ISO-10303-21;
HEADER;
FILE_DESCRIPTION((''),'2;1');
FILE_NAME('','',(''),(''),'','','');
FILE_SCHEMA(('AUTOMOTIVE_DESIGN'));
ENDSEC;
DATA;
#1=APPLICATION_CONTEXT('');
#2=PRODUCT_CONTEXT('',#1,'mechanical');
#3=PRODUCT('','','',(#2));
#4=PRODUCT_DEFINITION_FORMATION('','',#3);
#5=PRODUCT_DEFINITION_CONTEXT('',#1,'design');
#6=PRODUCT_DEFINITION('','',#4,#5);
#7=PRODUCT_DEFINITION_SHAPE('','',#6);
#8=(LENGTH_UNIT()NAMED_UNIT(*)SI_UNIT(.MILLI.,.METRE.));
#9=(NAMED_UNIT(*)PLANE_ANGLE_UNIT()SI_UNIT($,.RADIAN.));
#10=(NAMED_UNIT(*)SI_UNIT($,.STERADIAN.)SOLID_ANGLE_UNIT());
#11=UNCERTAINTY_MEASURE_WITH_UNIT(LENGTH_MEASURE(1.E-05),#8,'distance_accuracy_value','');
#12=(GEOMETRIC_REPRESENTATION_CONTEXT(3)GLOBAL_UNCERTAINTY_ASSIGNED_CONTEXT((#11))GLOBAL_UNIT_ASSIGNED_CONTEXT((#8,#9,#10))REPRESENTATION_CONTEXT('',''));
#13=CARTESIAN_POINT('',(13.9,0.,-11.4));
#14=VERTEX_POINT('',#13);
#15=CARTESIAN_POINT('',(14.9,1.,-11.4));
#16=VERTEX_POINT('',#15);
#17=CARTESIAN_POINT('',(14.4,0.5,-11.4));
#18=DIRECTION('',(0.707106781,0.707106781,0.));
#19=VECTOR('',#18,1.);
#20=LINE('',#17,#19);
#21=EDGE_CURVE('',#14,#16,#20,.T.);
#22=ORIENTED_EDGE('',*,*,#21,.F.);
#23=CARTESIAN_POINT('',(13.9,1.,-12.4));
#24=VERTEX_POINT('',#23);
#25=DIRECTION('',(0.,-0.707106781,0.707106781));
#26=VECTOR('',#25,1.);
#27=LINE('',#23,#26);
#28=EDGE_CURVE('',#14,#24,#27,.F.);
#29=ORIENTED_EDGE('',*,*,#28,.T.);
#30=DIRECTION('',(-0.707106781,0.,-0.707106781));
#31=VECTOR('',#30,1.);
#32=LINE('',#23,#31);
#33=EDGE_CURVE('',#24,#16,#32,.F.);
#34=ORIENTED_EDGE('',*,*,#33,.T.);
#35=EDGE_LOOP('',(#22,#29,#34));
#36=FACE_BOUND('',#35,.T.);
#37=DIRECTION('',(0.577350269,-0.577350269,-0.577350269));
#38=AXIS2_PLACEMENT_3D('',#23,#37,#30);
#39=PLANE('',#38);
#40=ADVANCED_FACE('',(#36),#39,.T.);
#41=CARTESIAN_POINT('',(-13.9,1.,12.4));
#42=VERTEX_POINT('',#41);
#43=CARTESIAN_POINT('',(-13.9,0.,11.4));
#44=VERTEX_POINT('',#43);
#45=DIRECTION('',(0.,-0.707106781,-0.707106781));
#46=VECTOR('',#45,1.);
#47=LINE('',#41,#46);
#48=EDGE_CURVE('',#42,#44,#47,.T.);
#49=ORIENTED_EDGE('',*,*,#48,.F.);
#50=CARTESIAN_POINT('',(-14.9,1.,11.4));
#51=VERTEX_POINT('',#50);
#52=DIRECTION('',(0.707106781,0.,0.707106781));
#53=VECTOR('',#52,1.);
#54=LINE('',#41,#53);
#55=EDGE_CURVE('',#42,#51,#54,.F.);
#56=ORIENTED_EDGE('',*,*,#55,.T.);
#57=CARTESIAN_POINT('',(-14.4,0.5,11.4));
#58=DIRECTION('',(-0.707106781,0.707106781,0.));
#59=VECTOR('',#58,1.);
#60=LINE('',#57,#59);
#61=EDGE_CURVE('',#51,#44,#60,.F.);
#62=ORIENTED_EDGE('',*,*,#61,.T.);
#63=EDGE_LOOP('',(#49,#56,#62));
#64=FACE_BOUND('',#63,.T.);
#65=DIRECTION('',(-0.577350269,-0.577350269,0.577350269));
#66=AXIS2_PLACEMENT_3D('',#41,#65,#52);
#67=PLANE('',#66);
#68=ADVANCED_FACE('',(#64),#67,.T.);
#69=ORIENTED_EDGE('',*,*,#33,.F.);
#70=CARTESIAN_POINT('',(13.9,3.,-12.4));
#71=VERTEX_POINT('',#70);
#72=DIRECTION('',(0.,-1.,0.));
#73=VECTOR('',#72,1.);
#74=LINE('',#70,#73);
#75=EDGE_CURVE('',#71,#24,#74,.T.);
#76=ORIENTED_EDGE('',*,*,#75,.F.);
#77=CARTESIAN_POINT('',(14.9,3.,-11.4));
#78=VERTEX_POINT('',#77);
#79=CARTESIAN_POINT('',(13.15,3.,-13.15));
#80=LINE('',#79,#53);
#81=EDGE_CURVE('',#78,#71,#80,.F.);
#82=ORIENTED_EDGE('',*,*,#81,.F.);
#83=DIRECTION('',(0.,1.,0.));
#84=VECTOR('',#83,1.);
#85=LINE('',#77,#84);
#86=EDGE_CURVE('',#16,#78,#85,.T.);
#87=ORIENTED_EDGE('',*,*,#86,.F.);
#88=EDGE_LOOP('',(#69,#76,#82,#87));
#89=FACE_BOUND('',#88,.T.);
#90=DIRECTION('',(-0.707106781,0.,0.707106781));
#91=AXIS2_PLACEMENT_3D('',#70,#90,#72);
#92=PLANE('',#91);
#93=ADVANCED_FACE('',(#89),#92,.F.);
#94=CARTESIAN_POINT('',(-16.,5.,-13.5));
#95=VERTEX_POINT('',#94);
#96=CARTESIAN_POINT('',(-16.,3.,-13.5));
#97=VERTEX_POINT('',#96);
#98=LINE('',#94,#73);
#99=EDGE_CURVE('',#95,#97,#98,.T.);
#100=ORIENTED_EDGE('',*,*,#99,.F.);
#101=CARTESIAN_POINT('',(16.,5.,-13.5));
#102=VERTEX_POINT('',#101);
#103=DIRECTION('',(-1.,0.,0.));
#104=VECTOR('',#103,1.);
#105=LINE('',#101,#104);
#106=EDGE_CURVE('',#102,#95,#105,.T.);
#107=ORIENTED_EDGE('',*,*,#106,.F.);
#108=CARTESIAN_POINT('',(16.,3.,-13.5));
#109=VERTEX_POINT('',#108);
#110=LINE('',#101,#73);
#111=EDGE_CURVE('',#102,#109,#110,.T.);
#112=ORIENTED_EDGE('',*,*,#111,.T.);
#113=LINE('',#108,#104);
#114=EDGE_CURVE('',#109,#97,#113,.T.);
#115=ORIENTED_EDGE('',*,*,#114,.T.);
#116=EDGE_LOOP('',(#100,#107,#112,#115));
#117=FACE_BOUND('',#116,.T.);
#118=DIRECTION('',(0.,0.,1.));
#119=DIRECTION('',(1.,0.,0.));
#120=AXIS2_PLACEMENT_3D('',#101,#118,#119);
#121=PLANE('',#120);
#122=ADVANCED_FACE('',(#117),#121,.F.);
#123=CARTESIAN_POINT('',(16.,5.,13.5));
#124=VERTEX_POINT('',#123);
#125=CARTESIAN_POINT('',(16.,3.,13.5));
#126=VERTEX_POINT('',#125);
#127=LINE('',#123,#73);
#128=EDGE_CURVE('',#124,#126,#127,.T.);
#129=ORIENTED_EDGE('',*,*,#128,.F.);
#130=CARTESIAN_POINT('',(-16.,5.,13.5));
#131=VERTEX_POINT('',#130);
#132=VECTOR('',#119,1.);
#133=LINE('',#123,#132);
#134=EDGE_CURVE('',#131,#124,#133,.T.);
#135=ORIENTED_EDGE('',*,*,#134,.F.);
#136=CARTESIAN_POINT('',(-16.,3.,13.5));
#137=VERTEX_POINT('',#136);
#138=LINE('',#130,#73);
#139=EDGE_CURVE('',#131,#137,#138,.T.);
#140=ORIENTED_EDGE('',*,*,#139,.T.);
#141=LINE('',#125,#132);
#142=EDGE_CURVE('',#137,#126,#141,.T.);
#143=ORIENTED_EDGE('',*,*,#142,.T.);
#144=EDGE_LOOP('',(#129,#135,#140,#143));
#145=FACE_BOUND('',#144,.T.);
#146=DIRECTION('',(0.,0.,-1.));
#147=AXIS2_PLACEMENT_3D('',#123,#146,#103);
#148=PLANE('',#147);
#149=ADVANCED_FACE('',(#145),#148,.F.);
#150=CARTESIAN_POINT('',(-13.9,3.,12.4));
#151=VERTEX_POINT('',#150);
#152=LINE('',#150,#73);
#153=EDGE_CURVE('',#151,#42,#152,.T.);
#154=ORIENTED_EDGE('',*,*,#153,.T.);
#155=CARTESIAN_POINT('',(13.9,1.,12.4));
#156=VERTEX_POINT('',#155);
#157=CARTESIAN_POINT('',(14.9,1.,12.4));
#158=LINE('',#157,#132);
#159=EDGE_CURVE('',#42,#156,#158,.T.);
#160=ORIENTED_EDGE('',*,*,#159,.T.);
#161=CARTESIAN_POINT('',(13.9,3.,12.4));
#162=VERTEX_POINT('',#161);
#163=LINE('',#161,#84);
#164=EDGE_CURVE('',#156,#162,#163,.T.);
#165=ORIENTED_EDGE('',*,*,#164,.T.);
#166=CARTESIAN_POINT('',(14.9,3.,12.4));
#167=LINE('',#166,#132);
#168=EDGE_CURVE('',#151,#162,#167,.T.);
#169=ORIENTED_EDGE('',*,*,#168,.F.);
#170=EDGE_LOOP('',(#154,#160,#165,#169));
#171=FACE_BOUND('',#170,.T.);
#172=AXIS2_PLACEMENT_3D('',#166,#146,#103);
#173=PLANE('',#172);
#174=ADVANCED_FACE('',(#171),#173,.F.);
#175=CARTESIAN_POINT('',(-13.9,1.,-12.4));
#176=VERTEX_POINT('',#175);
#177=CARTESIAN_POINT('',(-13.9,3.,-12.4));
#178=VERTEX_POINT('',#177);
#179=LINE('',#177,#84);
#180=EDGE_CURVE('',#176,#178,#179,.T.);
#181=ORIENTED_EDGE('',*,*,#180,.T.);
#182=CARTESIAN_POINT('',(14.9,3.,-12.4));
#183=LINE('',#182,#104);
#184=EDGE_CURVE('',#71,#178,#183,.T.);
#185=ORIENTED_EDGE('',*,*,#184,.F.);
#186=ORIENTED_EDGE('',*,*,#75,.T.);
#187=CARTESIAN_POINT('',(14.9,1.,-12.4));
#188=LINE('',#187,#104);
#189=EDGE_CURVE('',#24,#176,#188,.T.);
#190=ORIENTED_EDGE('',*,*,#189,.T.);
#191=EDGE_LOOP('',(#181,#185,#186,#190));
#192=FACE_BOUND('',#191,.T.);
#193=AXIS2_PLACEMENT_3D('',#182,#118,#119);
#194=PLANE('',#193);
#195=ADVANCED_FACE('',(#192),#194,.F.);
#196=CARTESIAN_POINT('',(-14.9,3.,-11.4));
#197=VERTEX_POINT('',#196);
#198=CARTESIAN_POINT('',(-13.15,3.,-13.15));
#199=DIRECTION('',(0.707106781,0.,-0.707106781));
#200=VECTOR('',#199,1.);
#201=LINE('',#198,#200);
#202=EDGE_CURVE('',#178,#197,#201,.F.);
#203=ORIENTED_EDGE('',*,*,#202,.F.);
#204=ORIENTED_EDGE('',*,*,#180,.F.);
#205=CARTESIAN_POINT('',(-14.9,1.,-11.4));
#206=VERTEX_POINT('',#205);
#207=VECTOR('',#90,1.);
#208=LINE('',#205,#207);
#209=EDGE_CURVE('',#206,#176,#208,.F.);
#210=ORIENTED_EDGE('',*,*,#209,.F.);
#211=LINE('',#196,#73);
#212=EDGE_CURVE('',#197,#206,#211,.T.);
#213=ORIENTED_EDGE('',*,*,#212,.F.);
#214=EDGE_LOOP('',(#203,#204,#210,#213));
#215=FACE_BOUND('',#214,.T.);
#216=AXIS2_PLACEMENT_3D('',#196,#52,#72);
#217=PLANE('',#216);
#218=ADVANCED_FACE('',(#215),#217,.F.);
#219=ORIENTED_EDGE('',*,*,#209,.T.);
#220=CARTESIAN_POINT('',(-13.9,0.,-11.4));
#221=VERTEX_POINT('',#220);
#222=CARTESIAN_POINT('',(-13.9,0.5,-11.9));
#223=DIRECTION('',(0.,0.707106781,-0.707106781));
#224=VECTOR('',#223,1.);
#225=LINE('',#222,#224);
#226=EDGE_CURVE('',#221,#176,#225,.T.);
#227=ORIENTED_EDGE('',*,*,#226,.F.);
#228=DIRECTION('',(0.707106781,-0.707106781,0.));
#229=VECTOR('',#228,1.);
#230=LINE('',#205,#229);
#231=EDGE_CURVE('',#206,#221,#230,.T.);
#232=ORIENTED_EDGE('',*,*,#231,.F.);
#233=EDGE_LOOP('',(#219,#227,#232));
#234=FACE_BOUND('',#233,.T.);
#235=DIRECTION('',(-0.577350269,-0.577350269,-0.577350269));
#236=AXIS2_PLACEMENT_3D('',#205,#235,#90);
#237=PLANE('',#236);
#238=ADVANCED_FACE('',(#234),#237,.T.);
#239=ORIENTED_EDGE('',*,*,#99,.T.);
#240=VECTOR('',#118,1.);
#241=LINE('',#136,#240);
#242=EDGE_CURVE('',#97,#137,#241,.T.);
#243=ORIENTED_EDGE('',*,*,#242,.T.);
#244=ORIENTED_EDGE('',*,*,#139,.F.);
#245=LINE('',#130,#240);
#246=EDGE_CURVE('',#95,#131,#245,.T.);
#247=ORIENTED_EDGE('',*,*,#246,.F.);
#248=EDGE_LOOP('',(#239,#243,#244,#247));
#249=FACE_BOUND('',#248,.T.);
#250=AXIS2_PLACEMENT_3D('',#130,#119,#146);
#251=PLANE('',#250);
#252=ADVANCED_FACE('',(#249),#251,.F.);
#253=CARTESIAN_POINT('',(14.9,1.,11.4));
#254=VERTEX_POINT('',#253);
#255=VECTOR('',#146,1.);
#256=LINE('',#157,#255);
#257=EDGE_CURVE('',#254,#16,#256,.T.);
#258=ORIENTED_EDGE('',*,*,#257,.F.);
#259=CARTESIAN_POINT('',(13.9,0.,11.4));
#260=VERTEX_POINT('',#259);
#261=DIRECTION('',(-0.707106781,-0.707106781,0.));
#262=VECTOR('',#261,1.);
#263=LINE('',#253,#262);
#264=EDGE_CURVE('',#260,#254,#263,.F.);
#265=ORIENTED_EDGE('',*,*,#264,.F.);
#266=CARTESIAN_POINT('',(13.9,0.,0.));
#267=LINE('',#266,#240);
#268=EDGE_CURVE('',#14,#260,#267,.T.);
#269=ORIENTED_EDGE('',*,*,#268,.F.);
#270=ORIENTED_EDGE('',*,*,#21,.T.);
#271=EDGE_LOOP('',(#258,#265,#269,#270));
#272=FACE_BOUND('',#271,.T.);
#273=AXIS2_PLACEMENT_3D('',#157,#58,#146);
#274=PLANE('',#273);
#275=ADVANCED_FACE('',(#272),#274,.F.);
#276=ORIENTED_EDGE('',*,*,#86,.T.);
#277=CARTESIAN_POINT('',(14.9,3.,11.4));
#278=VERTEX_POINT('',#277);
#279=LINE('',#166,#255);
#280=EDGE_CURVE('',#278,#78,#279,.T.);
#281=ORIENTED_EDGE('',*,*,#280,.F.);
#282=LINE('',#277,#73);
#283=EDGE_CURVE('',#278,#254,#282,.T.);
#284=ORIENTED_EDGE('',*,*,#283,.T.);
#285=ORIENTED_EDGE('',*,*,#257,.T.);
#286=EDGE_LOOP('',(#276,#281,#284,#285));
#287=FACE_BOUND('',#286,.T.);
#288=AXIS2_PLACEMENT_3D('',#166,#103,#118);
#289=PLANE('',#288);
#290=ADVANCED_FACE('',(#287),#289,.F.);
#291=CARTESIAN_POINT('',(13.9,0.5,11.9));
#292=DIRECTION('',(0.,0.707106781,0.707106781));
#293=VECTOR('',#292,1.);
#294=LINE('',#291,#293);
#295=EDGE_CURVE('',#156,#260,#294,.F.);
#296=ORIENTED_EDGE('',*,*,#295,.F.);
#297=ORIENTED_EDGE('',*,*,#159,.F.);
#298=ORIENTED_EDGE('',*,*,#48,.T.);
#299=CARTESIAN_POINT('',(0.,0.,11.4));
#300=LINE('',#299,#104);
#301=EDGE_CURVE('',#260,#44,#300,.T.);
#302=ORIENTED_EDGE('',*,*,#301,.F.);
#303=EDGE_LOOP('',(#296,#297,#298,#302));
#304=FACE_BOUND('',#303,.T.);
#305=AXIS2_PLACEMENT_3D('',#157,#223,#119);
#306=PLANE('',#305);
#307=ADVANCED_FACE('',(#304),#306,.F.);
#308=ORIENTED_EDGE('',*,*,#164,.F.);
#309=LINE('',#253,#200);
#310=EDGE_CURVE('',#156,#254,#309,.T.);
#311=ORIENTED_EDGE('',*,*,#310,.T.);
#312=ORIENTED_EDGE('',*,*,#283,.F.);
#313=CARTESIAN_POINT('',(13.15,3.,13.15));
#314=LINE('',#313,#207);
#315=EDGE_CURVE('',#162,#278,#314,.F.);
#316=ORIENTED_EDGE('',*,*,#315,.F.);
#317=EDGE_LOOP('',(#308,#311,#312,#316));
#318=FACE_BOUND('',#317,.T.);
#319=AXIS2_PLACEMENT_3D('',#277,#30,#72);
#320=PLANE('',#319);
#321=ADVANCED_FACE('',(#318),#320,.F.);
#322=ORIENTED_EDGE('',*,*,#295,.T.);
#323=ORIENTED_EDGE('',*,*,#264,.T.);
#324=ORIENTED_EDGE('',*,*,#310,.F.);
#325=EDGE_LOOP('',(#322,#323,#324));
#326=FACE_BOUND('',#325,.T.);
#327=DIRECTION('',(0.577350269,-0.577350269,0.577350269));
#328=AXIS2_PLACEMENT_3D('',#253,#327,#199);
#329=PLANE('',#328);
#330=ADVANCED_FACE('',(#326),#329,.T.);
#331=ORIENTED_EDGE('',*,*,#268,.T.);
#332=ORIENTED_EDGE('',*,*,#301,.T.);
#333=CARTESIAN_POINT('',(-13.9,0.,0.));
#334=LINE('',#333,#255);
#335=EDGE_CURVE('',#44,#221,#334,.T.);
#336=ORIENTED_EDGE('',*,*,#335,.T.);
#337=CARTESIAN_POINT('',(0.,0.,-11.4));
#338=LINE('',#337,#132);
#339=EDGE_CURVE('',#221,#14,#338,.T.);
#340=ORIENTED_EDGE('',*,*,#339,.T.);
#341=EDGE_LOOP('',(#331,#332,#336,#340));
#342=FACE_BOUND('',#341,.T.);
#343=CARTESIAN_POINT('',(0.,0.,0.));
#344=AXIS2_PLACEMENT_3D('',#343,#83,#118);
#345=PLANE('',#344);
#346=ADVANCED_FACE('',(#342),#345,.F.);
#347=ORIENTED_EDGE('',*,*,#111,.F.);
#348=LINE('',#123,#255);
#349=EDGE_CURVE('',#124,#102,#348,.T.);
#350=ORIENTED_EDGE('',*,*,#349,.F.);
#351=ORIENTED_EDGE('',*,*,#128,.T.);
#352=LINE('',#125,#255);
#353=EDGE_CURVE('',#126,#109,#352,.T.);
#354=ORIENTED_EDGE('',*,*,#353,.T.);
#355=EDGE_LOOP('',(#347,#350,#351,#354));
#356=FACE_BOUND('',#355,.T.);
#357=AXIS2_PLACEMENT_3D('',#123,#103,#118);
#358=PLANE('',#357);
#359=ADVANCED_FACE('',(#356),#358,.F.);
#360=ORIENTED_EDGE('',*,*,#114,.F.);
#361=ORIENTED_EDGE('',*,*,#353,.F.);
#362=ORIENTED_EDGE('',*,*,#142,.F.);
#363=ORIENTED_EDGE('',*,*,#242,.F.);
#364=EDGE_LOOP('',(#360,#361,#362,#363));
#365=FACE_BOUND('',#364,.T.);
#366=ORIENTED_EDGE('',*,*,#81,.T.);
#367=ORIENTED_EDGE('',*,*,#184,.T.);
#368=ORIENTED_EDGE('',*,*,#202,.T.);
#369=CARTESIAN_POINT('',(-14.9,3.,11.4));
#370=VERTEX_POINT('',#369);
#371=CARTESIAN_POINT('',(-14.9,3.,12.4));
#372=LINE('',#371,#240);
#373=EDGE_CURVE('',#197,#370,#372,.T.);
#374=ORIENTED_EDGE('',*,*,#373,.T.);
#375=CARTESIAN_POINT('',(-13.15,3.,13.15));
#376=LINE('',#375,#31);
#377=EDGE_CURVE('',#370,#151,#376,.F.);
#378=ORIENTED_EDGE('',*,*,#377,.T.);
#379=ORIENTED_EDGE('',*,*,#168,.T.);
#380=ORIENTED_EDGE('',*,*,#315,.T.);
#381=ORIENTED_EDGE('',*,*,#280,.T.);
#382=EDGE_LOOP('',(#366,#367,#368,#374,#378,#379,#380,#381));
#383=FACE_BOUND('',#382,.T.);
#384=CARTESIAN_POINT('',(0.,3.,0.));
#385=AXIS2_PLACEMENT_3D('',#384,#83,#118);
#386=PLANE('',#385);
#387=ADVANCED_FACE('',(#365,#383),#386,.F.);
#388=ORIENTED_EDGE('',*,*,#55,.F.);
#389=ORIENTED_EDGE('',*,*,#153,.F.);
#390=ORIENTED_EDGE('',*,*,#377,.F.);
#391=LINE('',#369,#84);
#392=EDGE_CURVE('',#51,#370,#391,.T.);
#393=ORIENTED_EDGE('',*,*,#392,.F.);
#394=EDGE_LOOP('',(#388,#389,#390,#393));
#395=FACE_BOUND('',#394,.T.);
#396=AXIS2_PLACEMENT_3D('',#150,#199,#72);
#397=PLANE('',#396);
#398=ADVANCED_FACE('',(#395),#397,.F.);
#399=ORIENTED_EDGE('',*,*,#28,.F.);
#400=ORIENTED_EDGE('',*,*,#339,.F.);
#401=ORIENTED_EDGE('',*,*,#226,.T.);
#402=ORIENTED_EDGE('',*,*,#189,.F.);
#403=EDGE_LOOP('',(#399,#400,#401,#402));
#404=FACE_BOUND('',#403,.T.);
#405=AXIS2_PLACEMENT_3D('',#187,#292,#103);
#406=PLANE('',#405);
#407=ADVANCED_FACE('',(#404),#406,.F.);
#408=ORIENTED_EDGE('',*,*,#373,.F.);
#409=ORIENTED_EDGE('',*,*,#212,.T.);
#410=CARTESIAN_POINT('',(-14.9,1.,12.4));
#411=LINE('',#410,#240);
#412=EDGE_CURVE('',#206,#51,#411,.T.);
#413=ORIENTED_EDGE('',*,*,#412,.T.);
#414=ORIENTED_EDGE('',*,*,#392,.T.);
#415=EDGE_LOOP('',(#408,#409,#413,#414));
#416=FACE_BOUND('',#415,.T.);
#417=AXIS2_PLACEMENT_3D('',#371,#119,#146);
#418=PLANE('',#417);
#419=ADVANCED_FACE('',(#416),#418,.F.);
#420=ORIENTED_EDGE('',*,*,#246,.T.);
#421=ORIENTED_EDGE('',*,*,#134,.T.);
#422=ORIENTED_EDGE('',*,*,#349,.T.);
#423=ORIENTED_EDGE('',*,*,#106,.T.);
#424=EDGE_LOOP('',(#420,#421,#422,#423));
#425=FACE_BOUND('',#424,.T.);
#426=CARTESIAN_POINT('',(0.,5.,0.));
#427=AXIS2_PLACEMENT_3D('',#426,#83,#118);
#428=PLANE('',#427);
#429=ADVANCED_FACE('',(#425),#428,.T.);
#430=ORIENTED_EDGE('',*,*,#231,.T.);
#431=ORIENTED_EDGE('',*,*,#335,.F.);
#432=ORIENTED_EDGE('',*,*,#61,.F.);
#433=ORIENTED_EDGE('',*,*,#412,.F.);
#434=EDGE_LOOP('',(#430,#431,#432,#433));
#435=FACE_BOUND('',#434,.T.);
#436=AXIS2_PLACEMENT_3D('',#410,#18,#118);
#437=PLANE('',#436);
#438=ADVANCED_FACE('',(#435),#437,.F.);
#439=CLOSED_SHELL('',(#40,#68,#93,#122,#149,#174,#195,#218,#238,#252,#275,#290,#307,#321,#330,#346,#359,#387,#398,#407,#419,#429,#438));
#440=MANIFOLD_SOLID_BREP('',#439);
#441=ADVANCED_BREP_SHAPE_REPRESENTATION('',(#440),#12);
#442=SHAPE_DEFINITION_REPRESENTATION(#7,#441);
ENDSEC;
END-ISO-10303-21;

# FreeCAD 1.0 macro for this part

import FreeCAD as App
import Part
import Sketcher
Q = App.Units.Quantity


def edges_at(feature, points):
    """Names of the edges that pass closest to the given points."""
    edges = feature.Shape.Edges
    near = lambda p: min(range(len(edges)), key=lambda i: edges[i].distToShape(Part.Vertex(*p))[0])
    return sorted({f"Edge{near(p) + 1}" for p in points})


def add_polygon(sketch, points):
    """Adds a closed chain of lines whose ends are joined by coincident constraints."""
    first, n = sketch.GeometryCount, len(points)
    for a, b in zip(points, points[1:] + points[:1]):
        sketch.addGeometry(Part.LineSegment(App.Vector(*a, 0), App.Vector(*b, 0)), False)
    for i in range(n):
        sketch.addConstraint(Sketcher.Constraint("Coincident", first + i, 2, first + (i + 1) % n, 1))

doc = App.newDocument("Part")
body = doc.addObject("PartDesign::Body", "Body")

# Sketch on XZ plane
sketch1 = doc.addObject("Sketcher::SketchObject", "Sketch")
body.addObject(sketch1)
sketch1.AttachmentSupport = (doc.XZ_Plane, [""])
sketch1.MapMode = "FlatFace"
add_polygon(sketch1, [(-15, -12), (-15, 12), (15, 12), (15, -12)])  # lines 0-3
sketch1.addConstraint(Sketcher.Constraint("Vertical", 0))
sketch1.addConstraint(Sketcher.Constraint("Horizontal", 1))
sketch1.addConstraint(Sketcher.Constraint("Vertical", 2))
sketch1.addConstraint(Sketcher.Constraint("Horizontal", 3))
sketch1.addConstraint(Sketcher.Constraint("Symmetric", 0, 2, 2, 2, -1, 1))
sketch1.addConstraint(Sketcher.Constraint("DistanceX", 1, 1, 1, 2, Q("29.8 mm")))
sketch1.addConstraint(Sketcher.Constraint("DistanceY", 0, 1, 0, 2, Q("24.8 mm")))
pad1 = doc.addObject("PartDesign::Pad", "Pad")
body.addObject(pad1)
pad1.Profile = sketch1
pad1.Length = 3
pad1.Reversed = True

# Sketch on XZ plane
sketch2 = doc.addObject("Sketcher::SketchObject", "Sketch001")
body.addObject(sketch2)
sketch2.AttachmentSupport = (doc.XZ_Plane, [""])
sketch2.MapMode = "FlatFace"
sketch2.AttachmentOffset = App.Placement(App.Vector(0, 0, -3), App.Rotation())
add_polygon(sketch2, [(-16, -14), (-16, 14), (16, 14), (16, -14)])  # lines 0-3
sketch2.addConstraint(Sketcher.Constraint("Vertical", 0))
sketch2.addConstraint(Sketcher.Constraint("Horizontal", 1))
sketch2.addConstraint(Sketcher.Constraint("Vertical", 2))
sketch2.addConstraint(Sketcher.Constraint("Horizontal", 3))
sketch2.addConstraint(Sketcher.Constraint("Symmetric", 0, 2, 2, 2, -1, 1))
sketch2.addConstraint(Sketcher.Constraint("DistanceX", 1, 1, 1, 2, Q("32 mm")))
sketch2.addConstraint(Sketcher.Constraint("DistanceY", 0, 1, 0, 2, Q("27 mm")))
pad2 = doc.addObject("PartDesign::Pad", "Pad001")
body.addObject(pad2)
pad2.Profile = sketch2
pad2.Length = 2
pad2.Reversed = True
doc.recompute()

chamfer = doc.addObject("PartDesign::Chamfer", "Chamfer")
body.addObject(chamfer)
chamfer.Base = (pad2, edges_at(pad2, [
    (0, 0, -12.4),
    (14.9, 0, 0),
    (0, 0, 12.4),
    (-14.9, 0, 0),
    (-14.9, 1.5, -12.4),
    (14.9, 1.5, -12.4),
    (14.9, 1.5, 12.4),
    (-14.9, 1.5, 12.4),
]))
chamfer.Size = 1

doc.recompute()
